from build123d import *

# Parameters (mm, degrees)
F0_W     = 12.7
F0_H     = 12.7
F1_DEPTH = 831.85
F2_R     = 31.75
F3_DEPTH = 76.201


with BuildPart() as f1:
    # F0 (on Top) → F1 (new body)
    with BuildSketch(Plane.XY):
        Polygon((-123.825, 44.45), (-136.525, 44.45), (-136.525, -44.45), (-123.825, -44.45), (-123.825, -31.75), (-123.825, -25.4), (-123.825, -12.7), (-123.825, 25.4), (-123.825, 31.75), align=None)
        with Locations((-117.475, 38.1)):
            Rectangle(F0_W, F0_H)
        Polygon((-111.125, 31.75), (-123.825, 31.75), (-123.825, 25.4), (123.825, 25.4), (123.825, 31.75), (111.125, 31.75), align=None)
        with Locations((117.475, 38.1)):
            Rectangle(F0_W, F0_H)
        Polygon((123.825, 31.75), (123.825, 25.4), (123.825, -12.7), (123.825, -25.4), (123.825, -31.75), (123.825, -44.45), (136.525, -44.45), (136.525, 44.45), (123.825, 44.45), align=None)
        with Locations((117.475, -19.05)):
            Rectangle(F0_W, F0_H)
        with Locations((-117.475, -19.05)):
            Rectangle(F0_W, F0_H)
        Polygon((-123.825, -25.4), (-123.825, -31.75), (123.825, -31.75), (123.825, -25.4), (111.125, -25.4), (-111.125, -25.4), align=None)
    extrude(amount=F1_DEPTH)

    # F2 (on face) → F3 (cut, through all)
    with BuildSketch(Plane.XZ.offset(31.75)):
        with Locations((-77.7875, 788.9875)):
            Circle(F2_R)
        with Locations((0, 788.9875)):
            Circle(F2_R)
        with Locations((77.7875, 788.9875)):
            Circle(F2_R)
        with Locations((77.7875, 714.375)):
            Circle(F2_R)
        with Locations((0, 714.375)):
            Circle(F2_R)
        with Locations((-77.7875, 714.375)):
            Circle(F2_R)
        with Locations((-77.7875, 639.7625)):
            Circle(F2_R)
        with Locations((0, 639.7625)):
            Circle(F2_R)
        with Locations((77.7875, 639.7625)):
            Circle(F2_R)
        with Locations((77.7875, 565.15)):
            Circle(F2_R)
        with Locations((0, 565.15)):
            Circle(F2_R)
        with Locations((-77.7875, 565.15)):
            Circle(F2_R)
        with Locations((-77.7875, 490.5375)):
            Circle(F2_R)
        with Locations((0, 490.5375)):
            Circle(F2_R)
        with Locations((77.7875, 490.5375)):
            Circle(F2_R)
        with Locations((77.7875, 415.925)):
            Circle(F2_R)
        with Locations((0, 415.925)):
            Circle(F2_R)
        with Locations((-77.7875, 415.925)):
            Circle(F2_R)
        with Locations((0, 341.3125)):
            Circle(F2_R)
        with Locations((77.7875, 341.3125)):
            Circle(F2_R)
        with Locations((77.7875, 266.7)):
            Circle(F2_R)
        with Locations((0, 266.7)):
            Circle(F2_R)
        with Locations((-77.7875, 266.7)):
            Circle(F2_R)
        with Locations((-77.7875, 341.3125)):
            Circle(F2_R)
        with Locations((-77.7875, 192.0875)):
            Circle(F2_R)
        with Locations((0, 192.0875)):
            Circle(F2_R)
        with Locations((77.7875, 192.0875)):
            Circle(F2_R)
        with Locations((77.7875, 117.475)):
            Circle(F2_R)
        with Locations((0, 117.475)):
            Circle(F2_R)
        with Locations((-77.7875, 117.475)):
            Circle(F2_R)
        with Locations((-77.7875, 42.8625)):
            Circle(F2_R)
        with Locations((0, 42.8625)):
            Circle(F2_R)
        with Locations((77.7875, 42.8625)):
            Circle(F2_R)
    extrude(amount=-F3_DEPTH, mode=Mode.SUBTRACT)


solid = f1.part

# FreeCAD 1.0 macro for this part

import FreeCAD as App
import Part
import Sketcher
Q = App.Units.Quantity

doc = App.newDocument("Part")
body = doc.addObject("PartDesign::Body", "Body")

# Sketch on XY plane
sketch1 = doc.addObject("Sketcher::SketchObject", "Sketch")
body.addObject(sketch1)
sketch1.AttachmentSupport = (doc.XY_Plane, [""])
sketch1.MapMode = "FlatFace"
sketch1.addGeometry([
    Part.LineSegment(App.Vector(-137, 44, 0), App.Vector(-137, -44, 0)),  # 0
    Part.LineSegment(App.Vector(-137, -44, 0), App.Vector(-124, -44, 0)),  # 1
    Part.LineSegment(App.Vector(-124, -44, 0), App.Vector(-124, -32, 0)),  # 2
    Part.LineSegment(App.Vector(-124, -32, 0), App.Vector(124, -32, 0)),  # 3
    Part.LineSegment(App.Vector(124, -32, 0), App.Vector(124, -44, 0)),  # 4
    Part.LineSegment(App.Vector(124, -44, 0), App.Vector(137, -44, 0)),  # 5
    Part.LineSegment(App.Vector(137, -44, 0), App.Vector(137, 44, 0)),  # 6
    Part.LineSegment(App.Vector(137, 44, 0), App.Vector(111, 44, 0)),  # 7
    Part.LineSegment(App.Vector(111, 44, 0), App.Vector(111, 32, 0)),  # 8
    Part.LineSegment(App.Vector(111, 32, 0), App.Vector(-111, 32, 0)),  # 9
    Part.LineSegment(App.Vector(-111, 32, 0), App.Vector(-111, 44, 0)),  # 10
    Part.LineSegment(App.Vector(-111, 44, 0), App.Vector(-137, 44, 0)),  # 11
    Part.LineSegment(App.Vector(-111, -25, 0), App.Vector(-111, -13, 0)),  # 12
    Part.LineSegment(App.Vector(-111, -13, 0), App.Vector(-124, -13, 0)),  # 13
    Part.LineSegment(App.Vector(-124, -13, 0), App.Vector(-124, 25, 0)),  # 14
    Part.LineSegment(App.Vector(-124, 25, 0), App.Vector(124, 25, 0)),  # 15
    Part.LineSegment(App.Vector(124, 25, 0), App.Vector(124, -13, 0)),  # 16
    Part.LineSegment(App.Vector(124, -13, 0), App.Vector(111, -13, 0)),  # 17
    Part.LineSegment(App.Vector(111, -13, 0), App.Vector(111, -25, 0)),  # 18
    Part.LineSegment(App.Vector(111, -25, 0), App.Vector(-111, -25, 0)),  # 19
], False)
sketch1.addConstraint([
    Sketcher.Constraint("Coincident", 0, 2, 1, 1),
    Sketcher.Constraint("Coincident", 1, 2, 2, 1),
    Sketcher.Constraint("Coincident", 2, 2, 3, 1),
    Sketcher.Constraint("Coincident", 3, 2, 4, 1),
    Sketcher.Constraint("Coincident", 4, 2, 5, 1),
    Sketcher.Constraint("Coincident", 5, 2, 6, 1),
    Sketcher.Constraint("Coincident", 6, 2, 7, 1),
    Sketcher.Constraint("Coincident", 7, 2, 8, 1),
    Sketcher.Constraint("Coincident", 8, 2, 9, 1),
    Sketcher.Constraint("Coincident", 9, 2, 10, 1),
    Sketcher.Constraint("Coincident", 10, 2, 11, 1),
    Sketcher.Constraint("Coincident", 11, 2, 0, 1),
    Sketcher.Constraint("Coincident", 12, 2, 13, 1),
    Sketcher.Constraint("Coincident", 13, 2, 14, 1),
    Sketcher.Constraint("Coincident", 14, 2, 15, 1),
    Sketcher.Constraint("Coincident", 15, 2, 16, 1),
    Sketcher.Constraint("Coincident", 16, 2, 17, 1),
    Sketcher.Constraint("Coincident", 17, 2, 18, 1),
    Sketcher.Constraint("Coincident", 18, 2, 19, 1),
    Sketcher.Constraint("Coincident", 19, 2, 12, 1),
    Sketcher.Constraint("Vertical", 0),
    Sketcher.Constraint("Horizontal", 1),
    Sketcher.Constraint("Vertical", 2),
    Sketcher.Constraint("Horizontal", 3),
    Sketcher.Constraint("Vertical", 4),
    Sketcher.Constraint("Horizontal", 5),
    Sketcher.Constraint("Vertical", 6),
    Sketcher.Constraint("Horizontal", 7),
    Sketcher.Constraint("Vertical", 8),
    Sketcher.Constraint("Horizontal", 9),
    Sketcher.Constraint("Vertical", 10),
    Sketcher.Constraint("Horizontal", 11),
    Sketcher.Constraint("Vertical", 12),
    Sketcher.Constraint("Horizontal", 13),
    Sketcher.Constraint("Vertical", 14),
    Sketcher.Constraint("Horizontal", 15),
    Sketcher.Constraint("Vertical", 16),
    Sketcher.Constraint("Horizontal", 17),
    Sketcher.Constraint("Vertical", 18),
    Sketcher.Constraint("Horizontal", 19),
    Sketcher.Constraint("Symmetric", 0, 2, 6, 2, -1, 1),
    Sketcher.Constraint("Symmetric", 1, 2, 4, 2, -2),
    Sketcher.Constraint("Symmetric", 7, 2, 10, 2, -2),
    Sketcher.Constraint("Symmetric", 13, 2, 16, 2, -2),
    Sketcher.Constraint("Vertical", 10, 2, 12, 2),
    Sketcher.Constraint("Vertical", 2, 2, 13, 2),
    Sketcher.Constraint("Vertical", 8, 2, 17, 2),
    Sketcher.Constraint("Equal", 5, 13),
    Sketcher.Constraint("Equal", 17, 2),
    Sketcher.Constraint("Equal", 4, 8),
    Sketcher.Constraint("Equal", 10, 12),
    Sketcher.Constraint("DistanceX", 7, 2, 7, 1, Q("1 in")),
    Sketcher.Constraint("DistanceY", 0, 2, 0, 1, Q("3.5 in")),
    Sketcher.Constraint("DistanceY", 14, 1, 14, 2, Q("1.5 in")),
    Sketcher.Constraint("DistanceY", -1, 1, 14, 2, Q("1 in")),
    Sketcher.Constraint("DistanceX", 3, 1, 3, 2, Q("9.75 in")),
])
pad1 = doc.addObject("PartDesign::Pad", "Pad")
body.addObject(pad1)
pad1.Profile = sketch1
pad1.Length = Q("32.75 in")

# Sketch on XZ plane
sketch2 = doc.addObject("Sketcher::SketchObject", "Sketch001")
body.addObject(sketch2)
sketch2.AttachmentSupport = (doc.XZ_Plane, [""])
sketch2.MapMode = "FlatFace"
sketch2.AttachmentOffset = App.Placement(App.Vector(0, 0, 1.25 * 25.4), App.Rotation())
sketch2.addGeometry([
    Part.Circle(App.Vector(-78, 789, 0), App.Vector(0, 0, 1), 32),  # 0
    Part.Circle(App.Vector(0, 789, 0), App.Vector(0, 0, 1), 32),  # 1
    Part.Circle(App.Vector(78, 789, 0), App.Vector(0, 0, 1), 32),  # 2
    Part.Circle(App.Vector(78, 714, 0), App.Vector(0, 0, 1), 32),  # 3
    Part.Circle(App.Vector(0, 714, 0), App.Vector(0, 0, 1), 32),  # 4
    Part.Circle(App.Vector(-78, 714, 0), App.Vector(0, 0, 1), 32),  # 5
    Part.Circle(App.Vector(-78, 640, 0), App.Vector(0, 0, 1), 32),  # 6
    Part.Circle(App.Vector(0, 640, 0), App.Vector(0, 0, 1), 32),  # 7
    Part.Circle(App.Vector(78, 640, 0), App.Vector(0, 0, 1), 32),  # 8
    Part.Circle(App.Vector(78, 565, 0), App.Vector(0, 0, 1), 32),  # 9
    Part.Circle(App.Vector(0, 565, 0), App.Vector(0, 0, 1), 32),  # 10
    Part.Circle(App.Vector(-78, 565, 0), App.Vector(0, 0, 1), 32),  # 11
    Part.Circle(App.Vector(-78, 491, 0), App.Vector(0, 0, 1), 32),  # 12
    Part.Circle(App.Vector(0, 491, 0), App.Vector(0, 0, 1), 32),  # 13
    Part.Circle(App.Vector(78, 491, 0), App.Vector(0, 0, 1), 32),  # 14
    Part.Circle(App.Vector(78, 416, 0), App.Vector(0, 0, 1), 32),  # 15
    Part.Circle(App.Vector(0, 416, 0), App.Vector(0, 0, 1), 32),  # 16
    Part.Circle(App.Vector(-78, 416, 0), App.Vector(0, 0, 1), 32),  # 17
    Part.Circle(App.Vector(0, 341, 0), App.Vector(0, 0, 1), 32),  # 18
    Part.Circle(App.Vector(78, 341, 0), App.Vector(0, 0, 1), 32),  # 19
    Part.Circle(App.Vector(78, 267, 0), App.Vector(0, 0, 1), 32),  # 20
    Part.Circle(App.Vector(0, 267, 0), App.Vector(0, 0, 1), 32),  # 21
    Part.Circle(App.Vector(-78, 267, 0), App.Vector(0, 0, 1), 32),  # 22
    Part.Circle(App.Vector(-78, 341, 0), App.Vector(0, 0, 1), 32),  # 23
    Part.Circle(App.Vector(-78, 192, 0), App.Vector(0, 0, 1), 32),  # 24
    Part.Circle(App.Vector(0, 192, 0), App.Vector(0, 0, 1), 32),  # 25
    Part.Circle(App.Vector(78, 192, 0), App.Vector(0, 0, 1), 32),  # 26
    Part.Circle(App.Vector(78, 117, 0), App.Vector(0, 0, 1), 32),  # 27
    Part.Circle(App.Vector(0, 117, 0), App.Vector(0, 0, 1), 32),  # 28
    Part.Circle(App.Vector(-78, 117, 0), App.Vector(0, 0, 1), 32),  # 29
    Part.Circle(App.Vector(-78, 43, 0), App.Vector(0, 0, 1), 32),  # 30
    Part.Circle(App.Vector(0, 43, 0), App.Vector(0, 0, 1), 32),  # 31
    Part.Circle(App.Vector(78, 43, 0), App.Vector(0, 0, 1), 32),  # 32
], False)
sketch2.addConstraint([
    Sketcher.Constraint("Equal", 0, 1),
    Sketcher.Constraint("Equal", 1, 2),
    Sketcher.Constraint("Equal", 2, 3),
    Sketcher.Constraint("Equal", 3, 4),
    Sketcher.Constraint("Equal", 4, 5),
    Sketcher.Constraint("Equal", 5, 6),
    Sketcher.Constraint("Equal", 6, 7),
    Sketcher.Constraint("Equal", 7, 8),
    Sketcher.Constraint("Equal", 8, 9),
    Sketcher.Constraint("Equal", 9, 10),
    Sketcher.Constraint("Equal", 10, 11),
    Sketcher.Constraint("Equal", 11, 12),
    Sketcher.Constraint("Equal", 12, 13),
    Sketcher.Constraint("Equal", 13, 14),
    Sketcher.Constraint("Equal", 14, 15),
    Sketcher.Constraint("Equal", 15, 16),
    Sketcher.Constraint("Equal", 16, 17),
    Sketcher.Constraint("Equal", 17, 18),
    Sketcher.Constraint("Equal", 18, 19),
    Sketcher.Constraint("Equal", 19, 20),
    Sketcher.Constraint("Equal", 20, 21),
    Sketcher.Constraint("Equal", 21, 22),
    Sketcher.Constraint("Equal", 22, 23),
    Sketcher.Constraint("Equal", 23, 24),
    Sketcher.Constraint("Equal", 24, 25),
    Sketcher.Constraint("Equal", 25, 26),
    Sketcher.Constraint("Equal", 26, 27),
    Sketcher.Constraint("Equal", 27, 28),
    Sketcher.Constraint("Equal", 28, 29),
    Sketcher.Constraint("Equal", 29, 30),
    Sketcher.Constraint("Equal", 30, 31),
    Sketcher.Constraint("Equal", 31, 32),
    Sketcher.Constraint("Symmetric", 0, 3, 2, 3, -2),
    Sketcher.Constraint("Symmetric", 3, 3, 5, 3, -2),
    Sketcher.Constraint("Symmetric", 6, 3, 8, 3, -2),
    Sketcher.Constraint("Symmetric", 9, 3, 11, 3, -2),
    Sketcher.Constraint("Symmetric", 12, 3, 14, 3, -2),
    Sketcher.Constraint("Symmetric", 15, 3, 17, 3, -2),
    Sketcher.Constraint("Symmetric", 20, 3, 22, 3, -2),
    Sketcher.Constraint("Symmetric", 19, 3, 23, 3, -2),
    Sketcher.Constraint("Symmetric", 24, 3, 26, 3, -2),
    Sketcher.Constraint("Symmetric", 27, 3, 29, 3, -2),
    Sketcher.Constraint("Symmetric", 30, 3, 32, 3, -2),
    Sketcher.Constraint("PointOnObject", 1, 3, -2),
    Sketcher.Constraint("PointOnObject", 4, 3, -2),
    Sketcher.Constraint("PointOnObject", 7, 3, -2),
    Sketcher.Constraint("PointOnObject", 10, 3, -2),
    Sketcher.Constraint("PointOnObject", 13, 3, -2),
    Sketcher.Constraint("PointOnObject", 16, 3, -2),
    Sketcher.Constraint("PointOnObject", 18, 3, -2),
    Sketcher.Constraint("PointOnObject", 21, 3, -2),
    Sketcher.Constraint("PointOnObject", 25, 3, -2),
    Sketcher.Constraint("PointOnObject", 28, 3, -2),
    Sketcher.Constraint("PointOnObject", 31, 3, -2),
    Sketcher.Constraint("Horizontal", 0, 3, 1, 3),
    Sketcher.Constraint("Horizontal", 3, 3, 4, 3),
    Sketcher.Constraint("Horizontal", 6, 3, 7, 3),
    Sketcher.Constraint("Horizontal", 9, 3, 10, 3),
    Sketcher.Constraint("Horizontal", 12, 3, 13, 3),
    Sketcher.Constraint("Horizontal", 15, 3, 16, 3),
    Sketcher.Constraint("Horizontal", 18, 3, 19, 3),
    Sketcher.Constraint("Horizontal", 20, 3, 21, 3),
    Sketcher.Constraint("Horizontal", 24, 3, 25, 3),
    Sketcher.Constraint("Horizontal", 27, 3, 28, 3),
    Sketcher.Constraint("Horizontal", 30, 3, 31, 3),
    Sketcher.Constraint("Vertical", 2, 3, 3, 3),
    Sketcher.Constraint("Vertical", 5, 3, 6, 3),
    Sketcher.Constraint("Vertical", 8, 3, 9, 3),
    Sketcher.Constraint("Vertical", 11, 3, 12, 3),
    Sketcher.Constraint("Vertical", 14, 3, 15, 3),
    Sketcher.Constraint("Vertical", 15, 3, 19, 3),
    Sketcher.Constraint("Vertical", 19, 3, 20, 3),
    Sketcher.Constraint("Vertical", 23, 3, 24, 3),
    Sketcher.Constraint("Vertical", 26, 3, 27, 3),
    Sketcher.Constraint("Vertical", 29, 3, 30, 3),
    Sketcher.Constraint("Diameter", 0, Q("2.5 in")),
    Sketcher.Constraint("DistanceY", -1, 1, 20, 3, Q("10.5 in")),
    Sketcher.Constraint("DistanceY", -1, 1, 9, 3, Q("22.25 in")),
    Sketcher.Constraint("DistanceX", 0, 3, -1, 1, Q("3.0625 in")),
    Sketcher.Constraint("DistanceY", -1, 1, 0, 3, Q("31.0625 in")),
    Sketcher.Constraint("DistanceY", -1, 1, 3, 3, Q("28.125 in")),
    Sketcher.Constraint("DistanceY", -1, 1, 6, 3, Q("25.1875 in")),
    Sketcher.Constraint("DistanceY", -1, 1, 12, 3, Q("19.3125 in")),
    Sketcher.Constraint("DistanceY", -1, 1, 15, 3, Q("16.375 in")),
    Sketcher.Constraint("DistanceY", -1, 1, 18, 3, Q("13.4375 in")),
    Sketcher.Constraint("DistanceY", -1, 1, 24, 3, Q("7.5625 in")),
    Sketcher.Constraint("DistanceY", -1, 1, 27, 3, Q("4.625 in")),
    Sketcher.Constraint("DistanceY", -1, 1, 30, 3, Q("1.6875 in")),
])
pocket1 = doc.addObject("PartDesign::Pocket", "Pocket")
body.addObject(pocket1)
pocket1.Profile = sketch2
pocket1.Type = "ThroughAll"

doc.recompute()
